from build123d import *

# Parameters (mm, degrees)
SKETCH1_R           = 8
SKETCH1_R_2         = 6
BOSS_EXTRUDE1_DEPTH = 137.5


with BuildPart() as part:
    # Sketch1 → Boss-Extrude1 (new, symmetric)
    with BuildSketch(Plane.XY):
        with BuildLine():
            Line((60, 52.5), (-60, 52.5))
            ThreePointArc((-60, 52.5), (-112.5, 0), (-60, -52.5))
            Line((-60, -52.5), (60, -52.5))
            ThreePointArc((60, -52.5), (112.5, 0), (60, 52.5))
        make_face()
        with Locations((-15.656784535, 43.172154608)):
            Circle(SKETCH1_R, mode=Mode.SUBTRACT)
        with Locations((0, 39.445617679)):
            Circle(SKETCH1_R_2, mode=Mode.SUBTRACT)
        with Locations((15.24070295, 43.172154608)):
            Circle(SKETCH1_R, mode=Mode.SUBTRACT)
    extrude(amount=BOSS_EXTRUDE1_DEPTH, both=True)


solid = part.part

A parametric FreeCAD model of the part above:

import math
import FreeCAD as App
import Part
import Sketcher

V = App.Vector

doc = App.newDocument("Part")
body = doc.addObject("PartDesign::Body", "Body")

# Sketch on XY plane
sketch1 = body.newObject("Sketcher::SketchObject", "Sketch")
sketch1.AttachmentSupport = (doc.getObject("XY_Plane"), [""])
sketch1.MapMode = "FlatFace"
sketch1.addGeometry(Part.LineSegment(V(60, 52, 0), V(-60, 52, 0)), False)
sketch1.addGeometry(Part.ArcOfCircle(Part.Circle(V(-60, 0, 0), V(0, 0, 1), 52), math.radians(90), math.radians(270)), False)
sketch1.addGeometry(Part.LineSegment(V(-60, -52, 0), V(60, -52, 0)), False)
sketch1.addGeometry(Part.ArcOfCircle(Part.Circle(V(60, 0, 0), V(0, 0, 1), 52), math.radians(-90), math.radians(90)), False)
sketch1.addGeometry(Part.Circle(V(0, 39, 0), V(0, 0, 1), 6), False)
sketch1.addGeometry(Part.Circle(V(-16, 43, 0), V(0, 0, 1), 8), False)
sketch1.addGeometry(Part.Circle(V(15, 43, 0), V(0, 0, 1), 8), False)
sketch1.addConstraint(Sketcher.Constraint("Tangent", 0, 2, 1, 1))
sketch1.addConstraint(Sketcher.Constraint("Tangent", 1, 2, 2, 1))
sketch1.addConstraint(Sketcher.Constraint("Tangent", 2, 2, 3, 1))
sketch1.addConstraint(Sketcher.Constraint("Tangent", 3, 2, 0, 1))
sketch1.addConstraint(Sketcher.Constraint("Horizontal", 0))
sketch1.addConstraint(Sketcher.Constraint("Horizontal", 2))
sketch1.addConstraint(Sketcher.Constraint("Equal", 5, 6))
sketch1.addConstraint(Sketcher.Constraint("Symmetric", 1, 3, 3, 3, -1, 1))
sketch1.addConstraint(Sketcher.Constraint("PointOnObject", 4, 3, -2))
sketch1.addConstraint(Sketcher.Constraint("Horizontal", 5, 3, 6, 3))
sketch1.addConstraint(Sketcher.Constraint("Diameter", 4, 12.0))
sketch1.addConstraint(Sketcher.Constraint("Diameter", 5, 16.0))
sketch1.addConstraint(Sketcher.Constraint("Radius", 1, 52.5))
sketch1.addConstraint(Sketcher.Constraint("DistanceX", 0, 2, 0, 1, 120.0))
sketch1.addConstraint(Sketcher.Constraint("DistanceY", -1, 1, 4, 3, 39.445618))
sketch1.addConstraint(Sketcher.Constraint("DistanceX", 5, 3, -1, 1, 15.656785))
sketch1.addConstraint(Sketcher.Constraint("DistanceY", -1, 1, 5, 3, 43.172155))
sketch1.addConstraint(Sketcher.Constraint("DistanceX", -1, 1, 6, 3, 15.240703))
pad1 = body.newObject("PartDesign::Pad", "Pad")
pad1.Profile = sketch1
pad1.Length = 275
pad1.Midplane = True

doc.recompute()
